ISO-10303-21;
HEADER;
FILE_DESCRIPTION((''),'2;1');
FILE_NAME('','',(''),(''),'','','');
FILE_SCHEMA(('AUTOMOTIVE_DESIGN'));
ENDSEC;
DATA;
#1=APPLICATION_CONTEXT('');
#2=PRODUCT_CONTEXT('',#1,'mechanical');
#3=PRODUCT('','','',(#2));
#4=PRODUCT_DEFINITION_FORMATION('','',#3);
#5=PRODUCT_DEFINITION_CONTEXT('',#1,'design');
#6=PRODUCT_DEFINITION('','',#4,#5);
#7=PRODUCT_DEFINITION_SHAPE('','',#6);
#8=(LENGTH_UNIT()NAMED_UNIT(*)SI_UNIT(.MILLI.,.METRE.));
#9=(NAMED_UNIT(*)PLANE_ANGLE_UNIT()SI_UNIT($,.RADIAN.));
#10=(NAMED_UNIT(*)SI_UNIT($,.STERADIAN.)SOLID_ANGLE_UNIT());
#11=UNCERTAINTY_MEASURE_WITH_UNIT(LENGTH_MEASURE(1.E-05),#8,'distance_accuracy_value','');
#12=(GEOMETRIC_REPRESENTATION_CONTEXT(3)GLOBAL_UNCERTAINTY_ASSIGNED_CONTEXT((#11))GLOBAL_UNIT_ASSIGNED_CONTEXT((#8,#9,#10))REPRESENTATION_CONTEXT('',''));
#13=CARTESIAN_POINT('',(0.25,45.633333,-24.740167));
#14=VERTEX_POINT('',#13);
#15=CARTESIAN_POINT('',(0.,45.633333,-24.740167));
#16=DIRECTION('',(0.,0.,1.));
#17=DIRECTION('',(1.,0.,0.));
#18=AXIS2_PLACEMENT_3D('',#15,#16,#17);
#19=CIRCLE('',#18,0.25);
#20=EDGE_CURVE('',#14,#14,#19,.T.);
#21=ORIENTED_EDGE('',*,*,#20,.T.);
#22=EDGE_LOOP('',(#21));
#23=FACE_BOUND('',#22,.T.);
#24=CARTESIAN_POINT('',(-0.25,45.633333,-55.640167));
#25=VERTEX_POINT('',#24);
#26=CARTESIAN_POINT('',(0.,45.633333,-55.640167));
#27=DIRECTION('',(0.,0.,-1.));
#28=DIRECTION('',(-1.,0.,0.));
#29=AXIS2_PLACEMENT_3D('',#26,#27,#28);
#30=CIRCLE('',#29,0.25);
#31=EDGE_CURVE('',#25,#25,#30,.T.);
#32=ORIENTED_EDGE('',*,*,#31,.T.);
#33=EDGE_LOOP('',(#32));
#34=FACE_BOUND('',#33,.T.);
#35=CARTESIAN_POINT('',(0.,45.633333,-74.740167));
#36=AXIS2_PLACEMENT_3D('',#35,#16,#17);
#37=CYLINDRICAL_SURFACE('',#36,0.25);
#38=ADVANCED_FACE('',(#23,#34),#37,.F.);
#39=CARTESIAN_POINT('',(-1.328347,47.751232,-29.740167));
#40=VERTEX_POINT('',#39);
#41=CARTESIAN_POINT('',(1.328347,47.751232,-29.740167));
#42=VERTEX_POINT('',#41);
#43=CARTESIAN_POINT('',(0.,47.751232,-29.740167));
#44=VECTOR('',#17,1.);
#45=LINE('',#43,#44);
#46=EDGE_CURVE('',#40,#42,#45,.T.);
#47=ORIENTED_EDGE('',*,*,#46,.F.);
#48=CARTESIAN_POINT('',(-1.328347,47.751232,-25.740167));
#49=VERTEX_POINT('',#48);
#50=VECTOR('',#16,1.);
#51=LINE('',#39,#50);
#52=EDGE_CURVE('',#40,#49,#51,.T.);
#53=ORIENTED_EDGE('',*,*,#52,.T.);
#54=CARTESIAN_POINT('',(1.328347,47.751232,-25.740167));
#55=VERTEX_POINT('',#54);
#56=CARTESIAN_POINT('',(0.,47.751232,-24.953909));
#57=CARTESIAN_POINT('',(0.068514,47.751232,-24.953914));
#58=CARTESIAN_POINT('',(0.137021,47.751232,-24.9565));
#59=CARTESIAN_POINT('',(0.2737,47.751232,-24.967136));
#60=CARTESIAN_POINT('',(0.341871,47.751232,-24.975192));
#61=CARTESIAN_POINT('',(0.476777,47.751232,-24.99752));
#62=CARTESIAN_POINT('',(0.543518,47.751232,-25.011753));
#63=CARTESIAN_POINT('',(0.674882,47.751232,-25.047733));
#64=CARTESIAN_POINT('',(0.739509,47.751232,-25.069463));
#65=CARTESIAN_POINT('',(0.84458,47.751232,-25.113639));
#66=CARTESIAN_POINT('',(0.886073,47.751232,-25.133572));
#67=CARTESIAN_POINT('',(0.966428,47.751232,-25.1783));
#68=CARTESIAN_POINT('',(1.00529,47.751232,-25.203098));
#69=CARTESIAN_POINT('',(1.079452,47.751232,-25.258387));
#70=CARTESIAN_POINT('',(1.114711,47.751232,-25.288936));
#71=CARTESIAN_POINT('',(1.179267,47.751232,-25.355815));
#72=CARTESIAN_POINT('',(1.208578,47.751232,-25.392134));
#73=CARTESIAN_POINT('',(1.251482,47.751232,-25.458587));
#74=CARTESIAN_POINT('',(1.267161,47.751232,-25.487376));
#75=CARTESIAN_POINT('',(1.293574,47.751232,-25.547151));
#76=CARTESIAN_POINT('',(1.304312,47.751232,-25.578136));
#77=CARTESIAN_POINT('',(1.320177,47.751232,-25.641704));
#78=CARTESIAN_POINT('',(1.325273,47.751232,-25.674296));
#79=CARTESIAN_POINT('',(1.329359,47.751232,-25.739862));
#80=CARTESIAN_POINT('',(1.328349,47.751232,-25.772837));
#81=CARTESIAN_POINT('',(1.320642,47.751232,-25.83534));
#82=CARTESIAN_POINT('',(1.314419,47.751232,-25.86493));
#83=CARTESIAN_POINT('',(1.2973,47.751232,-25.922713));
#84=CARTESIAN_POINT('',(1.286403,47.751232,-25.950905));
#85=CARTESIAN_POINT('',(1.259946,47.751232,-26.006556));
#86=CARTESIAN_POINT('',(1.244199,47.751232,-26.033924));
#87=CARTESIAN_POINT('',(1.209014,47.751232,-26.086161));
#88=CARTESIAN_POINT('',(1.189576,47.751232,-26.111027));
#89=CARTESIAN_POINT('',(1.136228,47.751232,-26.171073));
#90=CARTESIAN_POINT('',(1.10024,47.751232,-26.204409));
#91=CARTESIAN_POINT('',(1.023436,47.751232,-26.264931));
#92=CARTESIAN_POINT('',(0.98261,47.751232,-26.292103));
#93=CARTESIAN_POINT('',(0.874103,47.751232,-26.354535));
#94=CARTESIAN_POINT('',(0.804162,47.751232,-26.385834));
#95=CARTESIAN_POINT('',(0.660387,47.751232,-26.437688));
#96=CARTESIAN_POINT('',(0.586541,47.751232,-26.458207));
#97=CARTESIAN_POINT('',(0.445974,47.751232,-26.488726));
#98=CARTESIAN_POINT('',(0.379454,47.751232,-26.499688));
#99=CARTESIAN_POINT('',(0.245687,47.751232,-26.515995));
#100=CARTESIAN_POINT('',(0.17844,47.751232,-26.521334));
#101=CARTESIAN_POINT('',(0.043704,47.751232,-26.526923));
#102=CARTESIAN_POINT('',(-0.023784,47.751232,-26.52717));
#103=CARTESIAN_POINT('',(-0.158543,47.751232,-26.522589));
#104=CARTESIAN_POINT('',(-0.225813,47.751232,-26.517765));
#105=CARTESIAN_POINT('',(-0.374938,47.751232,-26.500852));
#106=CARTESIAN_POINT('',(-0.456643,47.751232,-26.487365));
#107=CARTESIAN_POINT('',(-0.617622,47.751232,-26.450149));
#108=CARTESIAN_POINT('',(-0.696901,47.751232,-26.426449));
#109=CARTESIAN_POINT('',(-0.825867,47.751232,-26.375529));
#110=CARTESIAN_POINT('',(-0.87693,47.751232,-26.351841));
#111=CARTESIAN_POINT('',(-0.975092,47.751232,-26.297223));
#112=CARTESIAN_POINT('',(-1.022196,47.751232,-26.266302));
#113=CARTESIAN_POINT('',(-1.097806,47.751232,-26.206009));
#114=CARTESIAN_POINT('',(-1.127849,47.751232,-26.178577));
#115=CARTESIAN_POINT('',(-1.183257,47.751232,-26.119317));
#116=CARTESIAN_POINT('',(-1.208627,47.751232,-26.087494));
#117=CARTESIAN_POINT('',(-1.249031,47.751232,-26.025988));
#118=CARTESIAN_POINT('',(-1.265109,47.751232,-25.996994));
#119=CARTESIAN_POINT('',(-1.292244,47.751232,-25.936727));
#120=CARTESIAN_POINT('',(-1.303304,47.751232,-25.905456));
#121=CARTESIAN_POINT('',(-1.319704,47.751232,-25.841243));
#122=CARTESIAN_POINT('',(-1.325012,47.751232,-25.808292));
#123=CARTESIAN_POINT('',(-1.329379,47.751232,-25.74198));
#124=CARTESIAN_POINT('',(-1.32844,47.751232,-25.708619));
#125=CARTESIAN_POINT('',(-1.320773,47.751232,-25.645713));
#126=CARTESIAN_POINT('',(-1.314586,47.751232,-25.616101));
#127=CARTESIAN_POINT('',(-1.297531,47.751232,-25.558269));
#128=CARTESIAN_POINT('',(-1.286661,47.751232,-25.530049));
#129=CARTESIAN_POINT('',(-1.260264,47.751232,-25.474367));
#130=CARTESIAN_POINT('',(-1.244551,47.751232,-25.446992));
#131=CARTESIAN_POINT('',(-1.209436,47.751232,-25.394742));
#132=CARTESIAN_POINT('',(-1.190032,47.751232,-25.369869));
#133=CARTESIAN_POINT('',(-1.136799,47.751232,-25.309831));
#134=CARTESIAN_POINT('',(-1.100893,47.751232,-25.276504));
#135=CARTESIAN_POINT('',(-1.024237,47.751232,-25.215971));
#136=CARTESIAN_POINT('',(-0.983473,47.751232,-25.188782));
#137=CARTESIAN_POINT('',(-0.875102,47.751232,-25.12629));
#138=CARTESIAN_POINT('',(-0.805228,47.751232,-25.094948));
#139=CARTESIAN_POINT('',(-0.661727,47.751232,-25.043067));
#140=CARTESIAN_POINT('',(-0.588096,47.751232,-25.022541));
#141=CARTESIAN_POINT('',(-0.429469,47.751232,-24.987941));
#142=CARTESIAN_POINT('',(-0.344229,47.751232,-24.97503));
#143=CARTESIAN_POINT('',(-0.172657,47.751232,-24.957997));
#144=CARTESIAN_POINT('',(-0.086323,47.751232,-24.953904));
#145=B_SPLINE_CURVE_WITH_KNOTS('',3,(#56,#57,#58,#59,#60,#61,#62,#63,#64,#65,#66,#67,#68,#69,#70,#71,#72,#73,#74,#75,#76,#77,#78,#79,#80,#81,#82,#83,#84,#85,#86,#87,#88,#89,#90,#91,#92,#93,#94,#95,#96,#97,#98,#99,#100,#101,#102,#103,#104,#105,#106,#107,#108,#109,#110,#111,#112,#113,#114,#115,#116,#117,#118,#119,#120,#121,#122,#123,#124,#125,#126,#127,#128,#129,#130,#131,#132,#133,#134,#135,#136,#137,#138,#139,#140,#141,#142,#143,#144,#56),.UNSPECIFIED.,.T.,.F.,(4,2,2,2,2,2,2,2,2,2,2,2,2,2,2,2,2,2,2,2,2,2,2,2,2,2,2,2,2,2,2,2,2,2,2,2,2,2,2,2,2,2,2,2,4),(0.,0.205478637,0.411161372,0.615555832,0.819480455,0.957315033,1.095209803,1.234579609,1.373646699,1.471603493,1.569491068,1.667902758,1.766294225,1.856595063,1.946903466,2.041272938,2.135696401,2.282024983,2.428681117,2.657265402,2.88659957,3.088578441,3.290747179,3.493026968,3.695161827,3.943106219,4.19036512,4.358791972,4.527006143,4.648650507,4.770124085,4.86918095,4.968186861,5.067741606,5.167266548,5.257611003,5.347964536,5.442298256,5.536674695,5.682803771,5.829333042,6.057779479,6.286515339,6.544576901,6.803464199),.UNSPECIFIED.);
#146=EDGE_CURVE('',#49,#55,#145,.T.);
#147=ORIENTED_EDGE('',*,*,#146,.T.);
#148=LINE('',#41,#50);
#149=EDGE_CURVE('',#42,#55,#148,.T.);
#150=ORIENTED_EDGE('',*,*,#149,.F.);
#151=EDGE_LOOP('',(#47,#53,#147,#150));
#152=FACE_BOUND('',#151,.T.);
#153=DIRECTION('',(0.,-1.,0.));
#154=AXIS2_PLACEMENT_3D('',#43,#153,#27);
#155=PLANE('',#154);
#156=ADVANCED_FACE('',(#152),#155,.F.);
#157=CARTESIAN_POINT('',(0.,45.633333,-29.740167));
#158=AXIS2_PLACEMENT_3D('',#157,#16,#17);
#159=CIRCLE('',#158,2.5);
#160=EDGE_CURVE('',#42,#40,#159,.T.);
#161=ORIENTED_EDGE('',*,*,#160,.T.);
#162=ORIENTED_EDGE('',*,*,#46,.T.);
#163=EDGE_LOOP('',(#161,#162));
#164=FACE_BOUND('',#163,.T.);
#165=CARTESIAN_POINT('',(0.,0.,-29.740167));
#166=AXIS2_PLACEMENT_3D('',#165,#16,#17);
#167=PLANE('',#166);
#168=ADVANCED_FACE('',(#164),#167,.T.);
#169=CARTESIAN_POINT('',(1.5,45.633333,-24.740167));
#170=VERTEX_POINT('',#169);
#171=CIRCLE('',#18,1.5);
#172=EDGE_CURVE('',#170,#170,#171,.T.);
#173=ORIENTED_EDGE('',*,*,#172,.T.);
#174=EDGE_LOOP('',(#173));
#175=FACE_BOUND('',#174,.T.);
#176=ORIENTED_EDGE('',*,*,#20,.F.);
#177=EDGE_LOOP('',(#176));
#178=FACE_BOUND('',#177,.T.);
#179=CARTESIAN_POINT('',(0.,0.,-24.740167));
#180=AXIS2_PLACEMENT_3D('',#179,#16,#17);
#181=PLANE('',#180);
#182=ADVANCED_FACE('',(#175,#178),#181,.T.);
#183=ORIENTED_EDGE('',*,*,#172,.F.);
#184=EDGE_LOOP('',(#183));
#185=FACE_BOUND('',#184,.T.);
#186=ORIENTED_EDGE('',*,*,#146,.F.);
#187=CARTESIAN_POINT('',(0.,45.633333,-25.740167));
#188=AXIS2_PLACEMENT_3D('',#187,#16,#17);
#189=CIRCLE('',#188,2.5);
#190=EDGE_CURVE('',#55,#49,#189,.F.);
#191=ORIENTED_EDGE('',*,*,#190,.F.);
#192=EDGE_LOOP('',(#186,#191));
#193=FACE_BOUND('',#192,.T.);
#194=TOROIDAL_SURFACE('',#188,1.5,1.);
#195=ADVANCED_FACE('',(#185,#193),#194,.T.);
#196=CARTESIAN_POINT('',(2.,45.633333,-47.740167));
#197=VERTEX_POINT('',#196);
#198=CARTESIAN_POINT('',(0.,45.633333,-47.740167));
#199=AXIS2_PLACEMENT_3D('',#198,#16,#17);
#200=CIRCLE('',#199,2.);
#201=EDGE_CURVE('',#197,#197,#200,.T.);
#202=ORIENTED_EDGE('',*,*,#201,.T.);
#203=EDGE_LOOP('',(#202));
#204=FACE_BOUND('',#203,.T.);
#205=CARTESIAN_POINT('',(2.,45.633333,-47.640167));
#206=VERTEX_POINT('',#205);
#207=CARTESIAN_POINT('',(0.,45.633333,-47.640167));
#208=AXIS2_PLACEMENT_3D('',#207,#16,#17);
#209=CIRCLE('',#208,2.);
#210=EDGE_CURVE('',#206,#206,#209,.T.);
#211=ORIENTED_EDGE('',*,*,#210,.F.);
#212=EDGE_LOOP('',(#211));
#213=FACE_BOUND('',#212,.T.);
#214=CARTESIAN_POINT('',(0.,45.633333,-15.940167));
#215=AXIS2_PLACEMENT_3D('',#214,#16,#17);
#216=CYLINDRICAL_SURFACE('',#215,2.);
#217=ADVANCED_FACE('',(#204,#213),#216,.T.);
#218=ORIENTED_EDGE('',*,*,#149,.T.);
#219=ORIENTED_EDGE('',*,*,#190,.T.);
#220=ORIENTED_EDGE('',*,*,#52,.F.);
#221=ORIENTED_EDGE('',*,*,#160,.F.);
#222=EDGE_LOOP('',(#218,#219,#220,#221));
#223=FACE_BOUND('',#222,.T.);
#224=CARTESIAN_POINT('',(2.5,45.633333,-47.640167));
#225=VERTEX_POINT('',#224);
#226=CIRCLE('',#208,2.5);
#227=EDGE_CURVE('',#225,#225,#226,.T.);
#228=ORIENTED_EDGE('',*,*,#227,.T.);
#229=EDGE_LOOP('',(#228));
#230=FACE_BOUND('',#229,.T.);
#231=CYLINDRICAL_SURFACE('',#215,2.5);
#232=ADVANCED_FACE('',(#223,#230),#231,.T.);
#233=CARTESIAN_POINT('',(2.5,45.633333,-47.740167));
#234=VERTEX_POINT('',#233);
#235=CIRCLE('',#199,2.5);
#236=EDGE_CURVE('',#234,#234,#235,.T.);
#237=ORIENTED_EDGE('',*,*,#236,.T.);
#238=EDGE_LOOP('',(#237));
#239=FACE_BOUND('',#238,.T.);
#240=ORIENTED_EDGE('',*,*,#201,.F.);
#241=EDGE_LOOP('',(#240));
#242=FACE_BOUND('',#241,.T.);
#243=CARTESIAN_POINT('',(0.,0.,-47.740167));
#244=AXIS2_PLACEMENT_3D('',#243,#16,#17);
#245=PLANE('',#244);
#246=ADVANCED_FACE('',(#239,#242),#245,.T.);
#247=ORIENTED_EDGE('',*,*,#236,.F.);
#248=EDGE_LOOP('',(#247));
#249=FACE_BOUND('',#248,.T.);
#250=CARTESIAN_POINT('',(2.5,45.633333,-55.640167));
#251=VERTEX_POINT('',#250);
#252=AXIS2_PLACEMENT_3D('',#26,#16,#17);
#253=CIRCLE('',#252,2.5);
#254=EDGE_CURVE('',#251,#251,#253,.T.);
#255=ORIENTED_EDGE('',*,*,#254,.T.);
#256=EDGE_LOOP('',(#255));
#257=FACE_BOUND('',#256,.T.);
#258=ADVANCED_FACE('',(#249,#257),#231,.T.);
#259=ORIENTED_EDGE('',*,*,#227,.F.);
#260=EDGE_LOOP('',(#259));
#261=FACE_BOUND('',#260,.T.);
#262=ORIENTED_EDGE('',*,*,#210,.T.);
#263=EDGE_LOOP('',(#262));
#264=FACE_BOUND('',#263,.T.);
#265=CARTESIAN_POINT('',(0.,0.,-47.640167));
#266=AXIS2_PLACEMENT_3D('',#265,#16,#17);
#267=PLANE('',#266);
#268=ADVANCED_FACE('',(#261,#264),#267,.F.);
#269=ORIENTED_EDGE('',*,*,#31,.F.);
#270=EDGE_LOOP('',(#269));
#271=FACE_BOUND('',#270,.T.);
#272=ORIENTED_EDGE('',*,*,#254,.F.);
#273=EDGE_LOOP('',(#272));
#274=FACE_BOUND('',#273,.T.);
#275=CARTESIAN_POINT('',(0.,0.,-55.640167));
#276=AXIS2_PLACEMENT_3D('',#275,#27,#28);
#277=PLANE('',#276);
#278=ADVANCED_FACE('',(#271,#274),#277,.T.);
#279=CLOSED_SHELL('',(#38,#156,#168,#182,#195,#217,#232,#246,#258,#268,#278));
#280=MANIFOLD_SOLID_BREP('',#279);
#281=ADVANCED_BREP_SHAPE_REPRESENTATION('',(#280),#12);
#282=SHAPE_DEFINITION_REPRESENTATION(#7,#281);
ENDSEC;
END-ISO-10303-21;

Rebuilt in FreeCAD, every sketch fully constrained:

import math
import FreeCAD as App
import Part
import Sketcher

V = App.Vector


def edges_at(feature, points):
    """Names of the edges that pass closest to the given points."""
    edges = feature.Shape.Edges
    near = lambda p: min(range(len(edges)), key=lambda i: edges[i].distToShape(Part.Vertex(*p))[0])
    return sorted({f"Edge{near(p) + 1}" for p in points})

doc = App.newDocument("Part")
body = doc.addObject("PartDesign::Body", "Body")

sketch1 = body.newObject("Sketcher::SketchObject", "Sketch")
sketch1.AttachmentSupport = (doc.getObject("YZ_Plane"), [""])
sketch1.MapMode = "FlatFace"
sketch1.addGeometry([
    Part.LineSegment(V(48.133333, -47.640167, 0), V(48.133333, -24.740167, 0)),
    Part.LineSegment(V(48.133333, -24.740167, 0), V(45.633333, -24.740167, 0)),
    Part.LineSegment(V(45.633333, -24.740167, 0), V(45.633333, -55.640167, 0)),
    Part.LineSegment(V(45.633333, -55.640167, 0), V(48.133333, -55.640167, 0)),
    Part.LineSegment(V(48.133333, -55.640167, 0), V(48.133333, -47.740167, 0)),
    Part.LineSegment(V(48.133333, -47.740167, 0), V(47.633333, -47.740167, 0)),
    Part.LineSegment(V(47.633333, -47.740167, 0), V(47.633333, -47.640167, 0)),
    Part.LineSegment(V(47.633333, -47.640167, 0), V(48.133333, -47.640167, 0)),
], False)
sketch1.addGeometry(Part.LineSegment(V(45.633333, -24.740167, 0), V(45.633333, -55.640167, 0)), True)
sketch1.addConstraint([
    Sketcher.Constraint("Coincident", 0, 2, 1, 1),
    Sketcher.Constraint("Coincident", 1, 2, 2, 1),
    Sketcher.Constraint("Coincident", 2, 2, 3, 1),
    Sketcher.Constraint("Coincident", 3, 2, 4, 1),
    Sketcher.Constraint("Coincident", 4, 2, 5, 1),
    Sketcher.Constraint("Coincident", 5, 2, 6, 1),
    Sketcher.Constraint("Coincident", 6, 2, 7, 1),
    Sketcher.Constraint("Coincident", 7, 2, 0, 1),
    Sketcher.Constraint("Vertical", 0),
    Sketcher.Constraint("Horizontal", 1),
    Sketcher.Constraint("Vertical", 2),
    Sketcher.Constraint("Horizontal", 3),
    Sketcher.Constraint("Vertical", 4),
    Sketcher.Constraint("Horizontal", 5),
    Sketcher.Constraint("Vertical", 6),
    Sketcher.Constraint("Horizontal", 7),
    Sketcher.Constraint("Vertical", 8),
    Sketcher.Constraint("Coincident", 8, 1, 1, 2),
    Sketcher.Constraint("Horizontal", 3, 2, 8, 2),
    Sketcher.Constraint("Vertical", 0, 2, 3, 2),
    Sketcher.Constraint("DistanceX", 1, 2, 1, 1, 2.5),
    Sketcher.Constraint("DistanceX", 5, 2, 5, 1, 0.5),
    Sketcher.Constraint("DistanceY", 0, 1, 0, 2, 22.9),
    Sketcher.Constraint("DistanceY", 2, 2, 2, 1, 30.9),
    Sketcher.Constraint("DistanceY", 4, 1, 4, 2, 7.9),
    Sketcher.Constraint("DistanceX", -1, 1, 0, 2, 48.133333),
    Sketcher.Constraint("DistanceY", 0, 2, -1, 1, 24.740167),
])
revolution = body.newObject("PartDesign::Revolution", "Revolution")
revolution.Profile = sketch1
revolution.ReferenceAxis = (sketch1, ["Axis0"])
revolution.Angle = 360

sketch2 = body.newObject("Sketcher::SketchObject", "Sketch001")
sketch2.AttachmentSupport = (doc.getObject("XY_Plane"), [""])
sketch2.MapMode = "FlatFace"
sketch2.AttachmentOffset = App.Placement(V(0, 0, -24.740167), App.Rotation())
sketch2.addGeometry(Part.Circle(V(0, 45.633333, 0), V(0, 0, 1), 0.25), False)
sketch2.addConstraint([
    Sketcher.Constraint("PointOnObject", 0, 3, -2),
    Sketcher.Constraint("Diameter", 0, 0.5),
    Sketcher.Constraint("DistanceY", -1, 1, 0, 3, 45.633333),
])
pocket1 = body.newObject("PartDesign::Pocket", "Pocket")
pocket1.Profile = sketch2
pocket1.Length = 50
doc.recompute()

fillet = body.newObject("PartDesign::Fillet", "Fillet")
fillet.Base = (pocket1, edges_at(pocket1, [(-2.5, 45.633, -24.74)]))
fillet.Radius = 1

sketch3 = body.newObject("Sketcher::SketchObject", "Sketch002")
sketch3.AttachmentSupport = (doc.getObject("XY_Plane"), [""])
sketch3.MapMode = "FlatFace"
sketch3.AttachmentOffset = App.Placement(V(0, 0, -29.740167), App.Rotation())
sketch3.addGeometry([
    Part.LineSegment(V(-1.328347, 47.751232, 0), V(1.328347, 47.751232, 0)),
    Part.ArcOfCircle(Part.Circle(V(0, 45.633333, 0), V(0, 0, 1), 2.5), math.radians(57.904051), math.radians(90)),
    Part.ArcOfCircle(Part.Circle(V(0, 45.633333, 0), V(0, 0, 1), 2.5), math.radians(90), math.radians(122.095949)),
], False)
sketch3.addConstraint([
    Sketcher.Constraint("Coincident", 0, 2, 1, 1),
    Sketcher.Constraint("Tangent", 1, 2, 2, 1),
    Sketcher.Constraint("Coincident", 2, 2, 0, 1),
    Sketcher.Constraint("Horizontal", 0),
    Sketcher.Constraint("Equal", 1, 2),
    Sketcher.Constraint("PointOnObject", 1, 3, -2),
    Sketcher.Constraint("PointOnObject", 1, 2, -2),
    Sketcher.Constraint("Radius", 1, 2.5),
    Sketcher.Constraint("DistanceY", 1, 3, 0, 2, 2.117899),
    Sketcher.Constraint("DistanceY", -1, 1, 1, 3, 45.633333),
])
pocket2 = body.newObject("PartDesign::Pocket", "Pocket001")
pocket2.Profile = sketch3
pocket2.Length = 5
pocket2.Reversed = True

doc.recompute()
